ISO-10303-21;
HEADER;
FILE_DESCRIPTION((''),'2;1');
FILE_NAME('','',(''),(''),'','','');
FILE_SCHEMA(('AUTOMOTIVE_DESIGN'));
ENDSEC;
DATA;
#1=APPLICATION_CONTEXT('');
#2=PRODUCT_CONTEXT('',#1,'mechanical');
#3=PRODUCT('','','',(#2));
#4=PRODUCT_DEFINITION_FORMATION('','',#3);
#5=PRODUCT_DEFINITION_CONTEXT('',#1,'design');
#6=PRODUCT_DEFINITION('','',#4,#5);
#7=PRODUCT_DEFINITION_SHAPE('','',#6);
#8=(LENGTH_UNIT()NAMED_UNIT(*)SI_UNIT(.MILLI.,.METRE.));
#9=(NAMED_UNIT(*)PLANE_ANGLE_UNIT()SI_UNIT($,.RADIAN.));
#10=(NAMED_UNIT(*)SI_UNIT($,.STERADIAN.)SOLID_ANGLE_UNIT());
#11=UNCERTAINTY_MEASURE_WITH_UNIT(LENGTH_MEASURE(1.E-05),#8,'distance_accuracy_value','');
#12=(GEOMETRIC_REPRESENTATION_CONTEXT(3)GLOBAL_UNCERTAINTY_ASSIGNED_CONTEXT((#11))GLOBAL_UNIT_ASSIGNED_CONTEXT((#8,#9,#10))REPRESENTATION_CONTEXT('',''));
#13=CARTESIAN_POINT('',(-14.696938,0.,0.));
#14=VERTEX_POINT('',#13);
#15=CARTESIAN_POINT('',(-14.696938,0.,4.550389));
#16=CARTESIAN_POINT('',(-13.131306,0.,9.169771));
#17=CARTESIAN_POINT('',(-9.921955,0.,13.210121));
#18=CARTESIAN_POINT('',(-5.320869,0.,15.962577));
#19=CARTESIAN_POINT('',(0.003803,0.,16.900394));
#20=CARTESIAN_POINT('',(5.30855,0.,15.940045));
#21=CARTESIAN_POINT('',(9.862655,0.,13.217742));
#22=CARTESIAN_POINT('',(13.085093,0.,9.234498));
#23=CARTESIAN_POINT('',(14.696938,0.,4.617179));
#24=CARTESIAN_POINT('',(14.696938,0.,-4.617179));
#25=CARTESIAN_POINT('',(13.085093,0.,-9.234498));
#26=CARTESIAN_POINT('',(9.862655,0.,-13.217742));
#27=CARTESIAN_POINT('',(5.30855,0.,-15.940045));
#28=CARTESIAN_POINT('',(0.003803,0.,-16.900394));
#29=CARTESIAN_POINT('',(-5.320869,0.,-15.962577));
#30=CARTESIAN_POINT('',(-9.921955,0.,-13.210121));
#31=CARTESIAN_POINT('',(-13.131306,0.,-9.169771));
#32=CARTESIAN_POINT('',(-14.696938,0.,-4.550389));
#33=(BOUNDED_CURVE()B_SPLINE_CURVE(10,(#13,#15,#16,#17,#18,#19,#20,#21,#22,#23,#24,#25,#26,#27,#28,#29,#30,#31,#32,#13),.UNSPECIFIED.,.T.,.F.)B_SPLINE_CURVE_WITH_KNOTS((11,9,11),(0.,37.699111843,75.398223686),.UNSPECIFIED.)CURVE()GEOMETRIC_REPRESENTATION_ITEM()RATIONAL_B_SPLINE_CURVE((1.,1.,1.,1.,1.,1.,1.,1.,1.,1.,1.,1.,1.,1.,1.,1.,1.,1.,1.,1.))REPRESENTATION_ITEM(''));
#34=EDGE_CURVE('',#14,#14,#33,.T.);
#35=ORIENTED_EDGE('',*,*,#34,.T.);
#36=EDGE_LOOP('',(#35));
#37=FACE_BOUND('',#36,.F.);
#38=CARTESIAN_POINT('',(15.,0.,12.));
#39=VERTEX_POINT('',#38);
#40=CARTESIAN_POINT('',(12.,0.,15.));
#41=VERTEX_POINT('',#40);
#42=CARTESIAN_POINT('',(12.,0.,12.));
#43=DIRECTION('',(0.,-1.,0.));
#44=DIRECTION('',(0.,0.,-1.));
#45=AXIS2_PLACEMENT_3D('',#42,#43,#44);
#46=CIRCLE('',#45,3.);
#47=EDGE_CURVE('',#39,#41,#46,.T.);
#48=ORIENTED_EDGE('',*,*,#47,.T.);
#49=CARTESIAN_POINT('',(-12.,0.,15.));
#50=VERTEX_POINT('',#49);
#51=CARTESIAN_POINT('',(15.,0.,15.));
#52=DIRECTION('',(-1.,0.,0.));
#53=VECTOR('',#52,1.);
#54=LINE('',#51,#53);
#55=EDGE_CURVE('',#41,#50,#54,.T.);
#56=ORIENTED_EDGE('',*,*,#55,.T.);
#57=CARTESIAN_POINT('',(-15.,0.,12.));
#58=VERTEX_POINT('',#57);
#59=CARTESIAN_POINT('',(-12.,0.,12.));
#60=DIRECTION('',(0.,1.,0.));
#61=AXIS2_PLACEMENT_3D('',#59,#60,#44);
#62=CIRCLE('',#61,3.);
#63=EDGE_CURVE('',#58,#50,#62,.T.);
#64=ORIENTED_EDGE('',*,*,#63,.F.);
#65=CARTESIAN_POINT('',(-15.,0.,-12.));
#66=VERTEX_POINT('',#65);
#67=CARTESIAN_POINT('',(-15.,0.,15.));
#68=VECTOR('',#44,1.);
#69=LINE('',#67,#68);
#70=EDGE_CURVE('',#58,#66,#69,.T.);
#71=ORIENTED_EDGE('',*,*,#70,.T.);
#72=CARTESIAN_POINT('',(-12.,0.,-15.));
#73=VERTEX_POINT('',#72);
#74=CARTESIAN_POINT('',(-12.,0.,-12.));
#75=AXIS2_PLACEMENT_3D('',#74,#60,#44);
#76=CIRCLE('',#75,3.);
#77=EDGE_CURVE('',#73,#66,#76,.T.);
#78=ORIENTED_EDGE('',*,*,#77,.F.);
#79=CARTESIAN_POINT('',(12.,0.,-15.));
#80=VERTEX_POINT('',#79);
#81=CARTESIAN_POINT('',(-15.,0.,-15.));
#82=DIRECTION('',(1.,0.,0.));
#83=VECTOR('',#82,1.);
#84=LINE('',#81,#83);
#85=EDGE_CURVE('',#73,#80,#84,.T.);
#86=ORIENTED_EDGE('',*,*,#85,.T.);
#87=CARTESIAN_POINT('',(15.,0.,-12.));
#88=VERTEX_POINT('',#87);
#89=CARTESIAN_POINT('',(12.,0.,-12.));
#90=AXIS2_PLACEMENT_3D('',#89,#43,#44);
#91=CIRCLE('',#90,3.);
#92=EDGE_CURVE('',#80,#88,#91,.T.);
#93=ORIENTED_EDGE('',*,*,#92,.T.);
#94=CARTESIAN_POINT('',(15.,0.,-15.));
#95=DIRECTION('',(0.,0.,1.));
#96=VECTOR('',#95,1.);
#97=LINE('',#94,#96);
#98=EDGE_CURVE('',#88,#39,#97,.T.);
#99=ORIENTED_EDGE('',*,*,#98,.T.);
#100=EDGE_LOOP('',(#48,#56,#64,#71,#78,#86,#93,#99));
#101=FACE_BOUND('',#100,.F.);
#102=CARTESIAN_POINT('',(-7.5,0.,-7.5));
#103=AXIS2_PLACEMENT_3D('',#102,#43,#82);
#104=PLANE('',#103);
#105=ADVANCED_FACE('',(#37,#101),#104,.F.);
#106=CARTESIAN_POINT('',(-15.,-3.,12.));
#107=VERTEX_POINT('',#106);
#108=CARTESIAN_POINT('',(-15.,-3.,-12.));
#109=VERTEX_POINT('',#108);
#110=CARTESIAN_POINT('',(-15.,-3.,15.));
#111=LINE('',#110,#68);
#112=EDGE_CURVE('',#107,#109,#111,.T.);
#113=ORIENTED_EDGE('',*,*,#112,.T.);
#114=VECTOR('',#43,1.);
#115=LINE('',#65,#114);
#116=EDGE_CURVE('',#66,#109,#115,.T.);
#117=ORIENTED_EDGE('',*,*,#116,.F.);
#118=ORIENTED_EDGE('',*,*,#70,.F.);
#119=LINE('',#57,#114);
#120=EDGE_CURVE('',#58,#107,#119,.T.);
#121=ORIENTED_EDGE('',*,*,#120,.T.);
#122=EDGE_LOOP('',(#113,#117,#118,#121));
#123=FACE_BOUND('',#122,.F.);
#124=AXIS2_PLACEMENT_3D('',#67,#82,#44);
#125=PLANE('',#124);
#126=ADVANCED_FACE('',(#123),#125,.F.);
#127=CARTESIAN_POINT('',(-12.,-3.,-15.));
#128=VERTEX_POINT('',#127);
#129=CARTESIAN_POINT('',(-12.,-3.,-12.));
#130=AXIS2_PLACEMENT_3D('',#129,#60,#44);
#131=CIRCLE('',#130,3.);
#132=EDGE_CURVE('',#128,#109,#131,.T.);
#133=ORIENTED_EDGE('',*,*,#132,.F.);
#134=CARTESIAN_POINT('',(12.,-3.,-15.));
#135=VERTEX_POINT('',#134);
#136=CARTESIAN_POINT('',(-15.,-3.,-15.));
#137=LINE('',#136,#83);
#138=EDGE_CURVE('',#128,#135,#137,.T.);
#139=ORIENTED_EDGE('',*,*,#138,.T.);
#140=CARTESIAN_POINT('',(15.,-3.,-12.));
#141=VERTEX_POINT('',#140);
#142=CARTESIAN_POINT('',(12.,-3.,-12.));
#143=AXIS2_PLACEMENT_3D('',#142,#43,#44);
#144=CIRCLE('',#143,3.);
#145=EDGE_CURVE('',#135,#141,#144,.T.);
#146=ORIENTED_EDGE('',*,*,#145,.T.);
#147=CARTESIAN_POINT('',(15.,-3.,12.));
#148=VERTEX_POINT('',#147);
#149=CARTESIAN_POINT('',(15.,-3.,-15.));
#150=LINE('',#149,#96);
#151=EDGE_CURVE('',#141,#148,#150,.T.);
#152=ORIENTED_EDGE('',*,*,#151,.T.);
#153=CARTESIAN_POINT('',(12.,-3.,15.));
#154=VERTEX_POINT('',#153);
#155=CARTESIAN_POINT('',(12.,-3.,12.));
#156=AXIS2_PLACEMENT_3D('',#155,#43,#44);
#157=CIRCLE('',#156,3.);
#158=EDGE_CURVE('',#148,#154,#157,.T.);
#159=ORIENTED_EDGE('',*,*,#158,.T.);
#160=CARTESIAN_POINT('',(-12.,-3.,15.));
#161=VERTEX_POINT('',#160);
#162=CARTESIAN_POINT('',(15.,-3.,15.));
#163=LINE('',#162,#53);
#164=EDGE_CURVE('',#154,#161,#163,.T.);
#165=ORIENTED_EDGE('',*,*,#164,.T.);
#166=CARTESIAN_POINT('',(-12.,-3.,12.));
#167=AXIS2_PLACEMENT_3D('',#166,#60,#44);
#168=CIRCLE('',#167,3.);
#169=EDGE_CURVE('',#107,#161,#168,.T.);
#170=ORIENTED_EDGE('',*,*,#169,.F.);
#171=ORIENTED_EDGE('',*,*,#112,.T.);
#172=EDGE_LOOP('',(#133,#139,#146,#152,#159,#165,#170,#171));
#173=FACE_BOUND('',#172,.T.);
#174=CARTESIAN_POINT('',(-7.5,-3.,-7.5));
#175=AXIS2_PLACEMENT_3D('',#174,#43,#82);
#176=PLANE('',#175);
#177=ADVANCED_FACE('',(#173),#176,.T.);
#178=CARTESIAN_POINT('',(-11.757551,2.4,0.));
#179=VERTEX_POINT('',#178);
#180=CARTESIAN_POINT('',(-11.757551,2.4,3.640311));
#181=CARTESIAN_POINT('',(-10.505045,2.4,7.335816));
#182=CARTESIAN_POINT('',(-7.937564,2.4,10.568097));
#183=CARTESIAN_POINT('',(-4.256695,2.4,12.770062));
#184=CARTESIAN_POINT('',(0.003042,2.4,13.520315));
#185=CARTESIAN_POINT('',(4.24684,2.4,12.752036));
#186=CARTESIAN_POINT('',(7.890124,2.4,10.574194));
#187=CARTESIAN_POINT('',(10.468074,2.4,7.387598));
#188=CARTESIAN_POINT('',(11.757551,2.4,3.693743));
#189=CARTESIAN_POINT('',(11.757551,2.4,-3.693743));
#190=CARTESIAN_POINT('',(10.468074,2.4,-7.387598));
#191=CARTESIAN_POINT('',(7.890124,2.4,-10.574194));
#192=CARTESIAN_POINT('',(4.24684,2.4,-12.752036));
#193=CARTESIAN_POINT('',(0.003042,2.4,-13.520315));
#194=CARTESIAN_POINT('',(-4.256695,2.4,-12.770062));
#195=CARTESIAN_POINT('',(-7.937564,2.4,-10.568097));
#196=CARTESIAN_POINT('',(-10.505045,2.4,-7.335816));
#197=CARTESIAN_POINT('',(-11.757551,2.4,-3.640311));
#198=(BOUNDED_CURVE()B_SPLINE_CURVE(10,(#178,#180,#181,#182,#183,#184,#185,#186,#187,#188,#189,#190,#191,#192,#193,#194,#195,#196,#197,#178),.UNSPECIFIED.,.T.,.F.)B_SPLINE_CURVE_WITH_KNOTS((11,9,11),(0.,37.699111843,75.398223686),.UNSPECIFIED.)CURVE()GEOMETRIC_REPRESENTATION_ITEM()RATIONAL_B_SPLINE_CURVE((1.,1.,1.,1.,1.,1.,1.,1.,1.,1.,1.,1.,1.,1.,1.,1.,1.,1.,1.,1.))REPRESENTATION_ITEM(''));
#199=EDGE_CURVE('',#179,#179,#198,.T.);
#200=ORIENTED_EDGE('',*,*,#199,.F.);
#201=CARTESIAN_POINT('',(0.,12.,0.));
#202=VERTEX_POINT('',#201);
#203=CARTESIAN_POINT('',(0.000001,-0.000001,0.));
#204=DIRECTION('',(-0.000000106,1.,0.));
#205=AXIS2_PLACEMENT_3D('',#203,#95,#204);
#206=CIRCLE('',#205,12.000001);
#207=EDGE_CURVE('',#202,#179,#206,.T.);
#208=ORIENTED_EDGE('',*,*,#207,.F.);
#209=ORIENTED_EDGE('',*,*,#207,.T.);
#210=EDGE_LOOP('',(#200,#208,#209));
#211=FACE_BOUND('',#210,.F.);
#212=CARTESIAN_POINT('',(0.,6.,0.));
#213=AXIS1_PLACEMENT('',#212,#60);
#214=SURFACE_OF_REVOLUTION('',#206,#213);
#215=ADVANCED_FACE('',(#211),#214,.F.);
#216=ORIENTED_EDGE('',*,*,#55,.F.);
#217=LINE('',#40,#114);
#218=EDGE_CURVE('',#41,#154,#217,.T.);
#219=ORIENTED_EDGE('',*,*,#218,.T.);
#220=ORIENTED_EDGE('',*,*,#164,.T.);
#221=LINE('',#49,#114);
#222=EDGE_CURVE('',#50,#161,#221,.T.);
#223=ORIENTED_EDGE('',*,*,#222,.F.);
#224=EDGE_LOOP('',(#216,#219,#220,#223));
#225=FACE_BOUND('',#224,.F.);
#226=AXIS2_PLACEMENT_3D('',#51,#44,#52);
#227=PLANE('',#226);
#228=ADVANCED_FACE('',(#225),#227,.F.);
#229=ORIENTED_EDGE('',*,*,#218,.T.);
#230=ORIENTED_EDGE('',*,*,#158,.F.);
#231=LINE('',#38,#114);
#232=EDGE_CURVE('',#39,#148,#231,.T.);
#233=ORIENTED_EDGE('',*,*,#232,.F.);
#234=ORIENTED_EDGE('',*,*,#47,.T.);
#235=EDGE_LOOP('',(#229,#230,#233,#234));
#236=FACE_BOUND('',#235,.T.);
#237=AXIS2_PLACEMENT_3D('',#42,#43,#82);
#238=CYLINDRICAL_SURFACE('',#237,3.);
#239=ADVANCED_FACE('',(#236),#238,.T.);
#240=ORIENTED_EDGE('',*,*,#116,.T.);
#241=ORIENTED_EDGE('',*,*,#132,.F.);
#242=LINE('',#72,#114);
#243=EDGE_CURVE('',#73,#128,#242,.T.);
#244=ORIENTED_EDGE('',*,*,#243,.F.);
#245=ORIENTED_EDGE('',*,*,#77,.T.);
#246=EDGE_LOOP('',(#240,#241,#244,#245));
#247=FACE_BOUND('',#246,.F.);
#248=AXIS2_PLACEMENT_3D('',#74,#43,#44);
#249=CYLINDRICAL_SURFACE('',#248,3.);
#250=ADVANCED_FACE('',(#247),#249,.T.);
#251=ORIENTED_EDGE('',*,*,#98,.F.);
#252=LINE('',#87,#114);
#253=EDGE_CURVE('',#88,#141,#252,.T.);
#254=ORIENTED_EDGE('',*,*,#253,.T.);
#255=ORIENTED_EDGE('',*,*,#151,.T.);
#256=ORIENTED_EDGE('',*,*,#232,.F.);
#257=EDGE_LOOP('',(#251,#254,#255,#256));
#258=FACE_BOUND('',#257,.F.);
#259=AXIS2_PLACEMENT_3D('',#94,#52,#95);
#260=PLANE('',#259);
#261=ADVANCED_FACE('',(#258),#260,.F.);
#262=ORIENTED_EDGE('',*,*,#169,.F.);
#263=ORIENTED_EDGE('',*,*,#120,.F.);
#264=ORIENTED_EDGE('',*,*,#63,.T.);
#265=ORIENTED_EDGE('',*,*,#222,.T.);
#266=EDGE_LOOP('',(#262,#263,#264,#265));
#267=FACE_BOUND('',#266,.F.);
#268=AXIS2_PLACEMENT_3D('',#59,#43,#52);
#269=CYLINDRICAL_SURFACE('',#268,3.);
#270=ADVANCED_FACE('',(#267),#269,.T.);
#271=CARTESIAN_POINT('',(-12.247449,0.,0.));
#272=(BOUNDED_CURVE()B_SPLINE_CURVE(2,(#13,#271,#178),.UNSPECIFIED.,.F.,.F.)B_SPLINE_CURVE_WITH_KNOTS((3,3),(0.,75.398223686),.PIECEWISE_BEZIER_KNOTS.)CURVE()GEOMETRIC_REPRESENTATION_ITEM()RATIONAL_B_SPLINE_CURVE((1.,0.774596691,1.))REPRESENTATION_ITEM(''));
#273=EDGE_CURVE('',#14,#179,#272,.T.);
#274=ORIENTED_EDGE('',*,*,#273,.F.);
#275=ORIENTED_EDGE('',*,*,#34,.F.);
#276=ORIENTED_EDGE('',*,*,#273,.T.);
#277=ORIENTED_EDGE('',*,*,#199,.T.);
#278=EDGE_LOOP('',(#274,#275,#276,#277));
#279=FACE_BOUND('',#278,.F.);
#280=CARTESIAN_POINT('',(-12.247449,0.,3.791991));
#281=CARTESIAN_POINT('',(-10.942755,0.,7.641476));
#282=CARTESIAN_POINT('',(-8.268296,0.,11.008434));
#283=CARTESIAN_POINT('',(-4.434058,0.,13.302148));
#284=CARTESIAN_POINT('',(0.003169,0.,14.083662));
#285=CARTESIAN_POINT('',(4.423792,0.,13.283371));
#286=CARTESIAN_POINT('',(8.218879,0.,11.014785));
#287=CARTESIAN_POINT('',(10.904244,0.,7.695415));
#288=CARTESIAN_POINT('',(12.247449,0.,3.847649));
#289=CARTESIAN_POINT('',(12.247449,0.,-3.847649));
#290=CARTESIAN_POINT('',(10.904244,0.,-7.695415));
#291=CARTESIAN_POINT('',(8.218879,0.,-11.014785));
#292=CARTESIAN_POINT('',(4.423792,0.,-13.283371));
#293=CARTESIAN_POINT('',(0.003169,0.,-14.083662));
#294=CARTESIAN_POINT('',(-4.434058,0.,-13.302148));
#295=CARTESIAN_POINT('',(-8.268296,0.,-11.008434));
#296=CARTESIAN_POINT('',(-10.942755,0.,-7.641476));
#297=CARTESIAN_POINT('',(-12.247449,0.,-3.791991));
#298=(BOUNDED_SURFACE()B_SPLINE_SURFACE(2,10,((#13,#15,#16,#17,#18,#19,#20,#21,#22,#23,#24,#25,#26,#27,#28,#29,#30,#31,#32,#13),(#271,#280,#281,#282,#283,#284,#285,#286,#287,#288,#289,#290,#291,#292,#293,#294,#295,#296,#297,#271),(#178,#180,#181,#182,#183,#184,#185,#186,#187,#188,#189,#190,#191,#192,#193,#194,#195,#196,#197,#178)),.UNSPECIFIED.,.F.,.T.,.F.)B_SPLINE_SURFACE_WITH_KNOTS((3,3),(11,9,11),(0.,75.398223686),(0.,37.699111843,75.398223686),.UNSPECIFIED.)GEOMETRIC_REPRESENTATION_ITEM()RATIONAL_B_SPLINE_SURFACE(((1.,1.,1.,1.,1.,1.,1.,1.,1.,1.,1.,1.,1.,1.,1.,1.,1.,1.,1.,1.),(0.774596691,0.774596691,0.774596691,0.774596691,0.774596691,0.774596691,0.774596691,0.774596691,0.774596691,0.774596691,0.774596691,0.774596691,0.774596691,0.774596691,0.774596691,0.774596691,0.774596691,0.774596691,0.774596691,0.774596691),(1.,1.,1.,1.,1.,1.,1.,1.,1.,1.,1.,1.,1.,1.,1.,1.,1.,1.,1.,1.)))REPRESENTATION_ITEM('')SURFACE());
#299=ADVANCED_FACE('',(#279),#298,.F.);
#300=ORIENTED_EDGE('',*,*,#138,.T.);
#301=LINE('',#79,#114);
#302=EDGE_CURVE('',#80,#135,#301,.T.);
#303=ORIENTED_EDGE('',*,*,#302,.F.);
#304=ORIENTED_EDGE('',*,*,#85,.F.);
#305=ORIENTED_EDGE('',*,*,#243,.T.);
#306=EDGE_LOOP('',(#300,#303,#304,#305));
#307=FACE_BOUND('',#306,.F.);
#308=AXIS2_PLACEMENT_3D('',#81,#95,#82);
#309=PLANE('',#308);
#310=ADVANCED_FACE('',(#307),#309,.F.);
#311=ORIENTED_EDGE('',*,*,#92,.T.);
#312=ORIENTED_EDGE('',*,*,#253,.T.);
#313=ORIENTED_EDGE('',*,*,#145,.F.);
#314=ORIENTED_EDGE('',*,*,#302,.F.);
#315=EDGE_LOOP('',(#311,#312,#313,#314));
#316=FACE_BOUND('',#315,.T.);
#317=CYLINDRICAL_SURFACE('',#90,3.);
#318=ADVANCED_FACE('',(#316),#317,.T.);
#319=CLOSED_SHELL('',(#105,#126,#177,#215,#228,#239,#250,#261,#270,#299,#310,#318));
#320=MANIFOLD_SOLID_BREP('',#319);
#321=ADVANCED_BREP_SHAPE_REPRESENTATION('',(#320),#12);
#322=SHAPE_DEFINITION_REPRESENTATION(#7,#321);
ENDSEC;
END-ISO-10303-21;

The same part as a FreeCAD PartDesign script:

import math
import FreeCAD as App
import Part
import Sketcher


def edges_at(feature, points):
    """Names of the edges that pass closest to the given points."""
    edges = feature.Shape.Edges
    near = lambda p: min(range(len(edges)), key=lambda i: edges[i].distToShape(Part.Vertex(*p))[0])
    return sorted({f"Edge{near(p) + 1}" for p in points})

doc = App.newDocument("Part")
params = doc.addObject("Spreadsheet::Sheet", "Params")
for row, (alias, value) in enumerate([
    ("sketch1_radius", "12.000001 mm"),
    ("revolution_angle", "360 deg"),
    ("sketch2_width", "30 mm"),
    ("pad1_length", "3 mm"),
    ("fillet_radius", "3 mm"),
], start=1):
    params.set(f"A{row}", alias)
    params.set(f"B{row}", "=" + value)
    params.setAlias(f"B{row}", alias)

body = doc.addObject("PartDesign::Body", "Body")

# Sketch on XY plane
sketch1 = doc.addObject("Sketcher::SketchObject", "Sketch")
body.addObject(sketch1)
sketch1.AttachmentSupport = (doc.XY_Plane, [""])
sketch1.MapMode = "FlatFace"
sketch1.addGeometry([
    Part.LineSegment(App.Vector(-12, 0, 0), App.Vector(0, 0, 0)),
    Part.LineSegment(App.Vector(0, 0, 0), App.Vector(0, 12, 0)),
    Part.ArcOfCircle(Part.Circle(App.Vector(0, 0, 0), App.Vector(0, 0, 1), 12), math.radians(90), math.radians(180)),
], False)
sketch1.addConstraint([
    Sketcher.Constraint("Coincident", 0, 2, 1, 1),
    Sketcher.Constraint("Coincident", 1, 2, 2, 1),
    Sketcher.Constraint("Coincident", 2, 2, 0, 1),
    Sketcher.Constraint("Horizontal", 0),
    Sketcher.Constraint("Vertical", 1),
    Sketcher.Constraint("Coincident", 2, 3, -1, 1),
    Sketcher.Constraint("Coincident", 0, 2, -1, 1),
    Sketcher.Constraint("Radius", 2, 12.000001),
])
sketch1.setExpression("Constraints[7]", "Params.sketch1_radius")
revolution = doc.addObject("PartDesign::Revolution", "Revolution")
body.addObject(revolution)
revolution.Profile = sketch1
revolution.ReferenceAxis = (sketch1, ["V_Axis"])
revolution.setExpression("Angle", "Params.revolution_angle")

# Sketch on XZ plane
sketch2 = doc.addObject("Sketcher::SketchObject", "Sketch001")
body.addObject(sketch2)
sketch2.AttachmentSupport = (doc.XZ_Plane, [""])
sketch2.MapMode = "FlatFace"
sketch2.addGeometry([
    Part.LineSegment(App.Vector(-15, -15, 0), App.Vector(15, -15, 0)),
    Part.LineSegment(App.Vector(15, -15, 0), App.Vector(15, 15, 0)),
    Part.LineSegment(App.Vector(15, 15, 0), App.Vector(-15, 15, 0)),
    Part.LineSegment(App.Vector(-15, 15, 0), App.Vector(-15, -15, 0)),
], False)
sketch2.addConstraint([
    Sketcher.Constraint("Coincident", 0, 2, 1, 1),
    Sketcher.Constraint("Coincident", 1, 2, 2, 1),
    Sketcher.Constraint("Coincident", 2, 2, 3, 1),
    Sketcher.Constraint("Coincident", 3, 2, 0, 1),
    Sketcher.Constraint("Horizontal", 0),
    Sketcher.Constraint("Vertical", 1),
    Sketcher.Constraint("Horizontal", 2),
    Sketcher.Constraint("Vertical", 3),
    Sketcher.Constraint("Symmetric", 0, 2, 2, 2, -1, 1),
    Sketcher.Constraint("Equal", 2, 1),
    Sketcher.Constraint("DistanceX", 0, 1, 0, 2, 30.0),
])
sketch2.setExpression("Constraints[10]", "Params.sketch2_width")
pad1 = doc.addObject("PartDesign::Pad", "Pad")
body.addObject(pad1)
pad1.Profile = sketch2
pad1.setExpression("Length", "Params.pad1_length")
doc.recompute()

fillet = doc.addObject("PartDesign::Fillet", "Fillet")
body.addObject(fillet)
fillet.Base = (pad1, edges_at(pad1, [
    (15, -1.5, 15),
    (15, -1.5, -15),
    (-15, -1.5, -15),
    (-15, -1.5, 15),
    (12, 0, 0),
]))
fillet.setExpression("Radius", "Params.fillet_radius")

doc.recompute()
